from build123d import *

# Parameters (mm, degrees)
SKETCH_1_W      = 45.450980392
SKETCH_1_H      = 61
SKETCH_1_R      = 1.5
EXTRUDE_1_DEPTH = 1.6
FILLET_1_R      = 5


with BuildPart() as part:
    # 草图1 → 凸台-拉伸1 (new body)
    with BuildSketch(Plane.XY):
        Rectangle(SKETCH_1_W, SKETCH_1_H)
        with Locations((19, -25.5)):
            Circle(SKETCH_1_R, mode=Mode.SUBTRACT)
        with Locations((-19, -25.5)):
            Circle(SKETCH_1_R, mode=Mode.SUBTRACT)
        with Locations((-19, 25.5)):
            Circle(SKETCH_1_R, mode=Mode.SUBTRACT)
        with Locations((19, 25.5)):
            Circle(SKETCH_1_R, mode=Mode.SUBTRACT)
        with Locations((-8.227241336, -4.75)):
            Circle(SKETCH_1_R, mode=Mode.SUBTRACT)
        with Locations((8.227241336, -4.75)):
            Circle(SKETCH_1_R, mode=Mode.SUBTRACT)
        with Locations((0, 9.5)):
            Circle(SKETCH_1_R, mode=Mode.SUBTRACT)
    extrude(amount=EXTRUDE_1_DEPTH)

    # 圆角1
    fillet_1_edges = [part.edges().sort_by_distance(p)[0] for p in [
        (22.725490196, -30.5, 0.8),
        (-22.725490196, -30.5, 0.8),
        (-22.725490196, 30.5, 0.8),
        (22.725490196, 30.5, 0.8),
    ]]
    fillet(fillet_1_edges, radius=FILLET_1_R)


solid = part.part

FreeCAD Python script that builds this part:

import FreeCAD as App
import Part
import Sketcher

V = App.Vector


def edges_at(feature, points):
    """Names of the edges that pass closest to the given points."""
    edges = feature.Shape.Edges
    near = lambda p: min(range(len(edges)), key=lambda i: edges[i].distToShape(Part.Vertex(*p))[0])
    return sorted({f"Edge{near(p) + 1}" for p in points})

doc = App.newDocument("Part")
body = doc.addObject("PartDesign::Body", "Body")

# Sketch on XY plane
sketch1 = doc.addObject("Sketcher::SketchObject", "Sketch")
body.addObject(sketch1)
sketch1.AttachmentSupport = (doc.XY_Plane, [""])
sketch1.MapMode = "FlatFace"
sketch1.addGeometry(Part.LineSegment(V(-22.72549, 30.5, 0), V(-22.72549, -30.5, 0)), False)
sketch1.addGeometry(Part.LineSegment(V(-22.72549, -30.5, 0), V(22.72549, -30.5, 0)), False)
sketch1.addGeometry(Part.LineSegment(V(22.72549, -30.5, 0), V(22.72549, 30.5, 0)), False)
sketch1.addGeometry(Part.LineSegment(V(22.72549, 30.5, 0), V(-22.72549, 30.5, 0)), False)
sketch1.addGeometry(Part.Circle(V(-19, -25.5, 0), V(0, 0, 1), 1.5), False)
sketch1.addGeometry(Part.Circle(V(-8.227241, -4.75, 0), V(0, 0, 1), 1.5), False)
sketch1.addGeometry(Part.Circle(V(19, -25.5, 0), V(0, 0, 1), 1.5), False)
sketch1.addGeometry(Part.Circle(V(8.227241, -4.75, 0), V(0, 0, 1), 1.5), False)
sketch1.addGeometry(Part.Circle(V(-19, 25.5, 0), V(0, 0, 1), 1.5), False)
sketch1.addGeometry(Part.Circle(V(0, 9.5, 0), V(0, 0, 1), 1.5), False)
sketch1.addGeometry(Part.Circle(V(19, 25.5, 0), V(0, 0, 1), 1.5), False)
sketch1.addConstraint(Sketcher.Constraint("Coincident", 0, 2, 1, 1))
sketch1.addConstraint(Sketcher.Constraint("Coincident", 1, 2, 2, 1))
sketch1.addConstraint(Sketcher.Constraint("Coincident", 2, 2, 3, 1))
sketch1.addConstraint(Sketcher.Constraint("Coincident", 3, 2, 0, 1))
sketch1.addConstraint(Sketcher.Constraint("Vertical", 0))
sketch1.addConstraint(Sketcher.Constraint("Horizontal", 1))
sketch1.addConstraint(Sketcher.Constraint("Vertical", 2))
sketch1.addConstraint(Sketcher.Constraint("Horizontal", 3))
sketch1.addConstraint(Sketcher.Constraint("Equal", 4, 5))
sketch1.addConstraint(Sketcher.Constraint("Equal", 5, 6))
sketch1.addConstraint(Sketcher.Constraint("Equal", 6, 7))
sketch1.addConstraint(Sketcher.Constraint("Equal", 7, 8))
sketch1.addConstraint(Sketcher.Constraint("Equal", 8, 9))
sketch1.addConstraint(Sketcher.Constraint("Equal", 9, 10))
sketch1.addConstraint(Sketcher.Constraint("Symmetric", 6, 3, 8, 3, -1, 1))
sketch1.addConstraint(Sketcher.Constraint("Symmetric", 4, 3, 10, 3, -1, 1))
sketch1.addConstraint(Sketcher.Constraint("Symmetric", 0, 2, 2, 2, -1, 1))
sketch1.addConstraint(Sketcher.Constraint("Symmetric", 4, 3, 6, 3, -2))
sketch1.addConstraint(Sketcher.Constraint("Symmetric", 5, 3, 7, 3, -2))
sketch1.addConstraint(Sketcher.Constraint("PointOnObject", 9, 3, -2))
sketch1.addConstraint(Sketcher.Constraint("Diameter", 4, 3.0))
sketch1.addConstraint(Sketcher.Constraint("DistanceY", 0, 2, 0, 1, 61.0))
sketch1.addConstraint(Sketcher.Constraint("DistanceX", 4, 3, -1, 1, 19.0))
sketch1.addConstraint(Sketcher.Constraint("DistanceY", 4, 3, 8, 3, 51.0))
sketch1.addConstraint(Sketcher.Constraint("DistanceY", 9, 3, 8, 3, 16.0))
sketch1.addConstraint(Sketcher.Constraint("DistanceY", 5, 3, -1, 1, 4.75))
sketch1.addConstraint(Sketcher.Constraint("DistanceX", 1, 1, 1, 2, 45.45098))
sketch1.addConstraint(Sketcher.Constraint("DistanceX", 5, 3, -1, 1, 8.227241))
pad1 = doc.addObject("PartDesign::Pad", "Pad")
body.addObject(pad1)
pad1.Profile = sketch1
pad1.Length = 1.6
doc.recompute()

fillet = doc.addObject("PartDesign::Fillet", "Fillet")
body.addObject(fillet)
fillet.Base = (pad1, edges_at(pad1, [
    (22.725, -30.5, 0.8),
    (-22.725, -30.5, 0.8),
    (-22.725, 30.5, 0.8),
    (22.725, 30.5, 0.8),
]))
fillet.Radius = 5

doc.recompute()
